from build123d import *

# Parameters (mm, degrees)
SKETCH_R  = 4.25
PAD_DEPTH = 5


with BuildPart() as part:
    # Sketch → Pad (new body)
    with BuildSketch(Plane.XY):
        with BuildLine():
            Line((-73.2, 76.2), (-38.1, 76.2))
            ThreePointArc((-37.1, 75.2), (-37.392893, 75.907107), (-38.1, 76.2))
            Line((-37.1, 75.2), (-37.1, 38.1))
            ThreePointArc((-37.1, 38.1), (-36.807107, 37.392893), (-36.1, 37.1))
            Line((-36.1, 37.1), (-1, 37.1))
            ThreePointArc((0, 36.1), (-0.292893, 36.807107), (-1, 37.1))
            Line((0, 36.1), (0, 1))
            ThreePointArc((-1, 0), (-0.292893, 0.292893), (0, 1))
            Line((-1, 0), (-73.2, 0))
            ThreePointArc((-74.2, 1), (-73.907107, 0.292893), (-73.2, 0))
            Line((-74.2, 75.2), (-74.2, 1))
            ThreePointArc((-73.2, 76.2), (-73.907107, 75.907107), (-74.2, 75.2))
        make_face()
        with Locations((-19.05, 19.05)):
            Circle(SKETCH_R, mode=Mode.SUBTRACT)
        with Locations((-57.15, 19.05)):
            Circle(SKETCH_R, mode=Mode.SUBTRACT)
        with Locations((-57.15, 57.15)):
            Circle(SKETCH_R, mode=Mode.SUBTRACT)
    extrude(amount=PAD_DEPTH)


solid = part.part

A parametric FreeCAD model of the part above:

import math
import FreeCAD as App
import Part
import Sketcher
from FreeCAD import Vector
Q = App.Units.Quantity

doc = App.newDocument("Part")
body = doc.addObject("PartDesign::Body", "Body")

# Sketch on XY plane
sketch1 = body.newObject("Sketcher::SketchObject", "Sketch")
sketch1.AttachmentSupport = (doc.getObject("XY_Plane"), [""])
sketch1.MapMode = "FlatFace"
sketch1.addGeometry([
    Part.LineSegment(Vector(-38.1, 76.2, 0), Vector(-73.2, 76.2, 0)),  # 0
    Part.ArcOfCircle(Part.Circle(Vector(-73.200001, 75.200001, 0), Vector(0, 0, 1), 0.999999), math.radians(89.999957), math.radians(180.000043)),  # 1
    Part.LineSegment(Vector(-74.2, 75.2, 0), Vector(-74.2, 1, 0)),  # 2
    Part.ArcOfCircle(Part.Circle(Vector(-73.200001, 0.999999, 0), Vector(0, 0, 1), 0.999999), math.radians(179.999957), math.radians(270.000043)),  # 3
    Part.LineSegment(Vector(-73.2, 0, 0), Vector(-1, 0, 0)),  # 4
    Part.ArcOfCircle(Part.Circle(Vector(-0.999999, 0.999999, 0), Vector(0, 0, 1), 0.999999), math.radians(-90.000043), math.radians(0.000043)),  # 5
    Part.LineSegment(Vector(0, 1, 0), Vector(0, 36.1, 0)),  # 6
    Part.ArcOfCircle(Part.Circle(Vector(-0.999999, 36.100001, 0), Vector(0, 0, 1), 0.999999), math.radians(-0.000043), math.radians(90.000043)),  # 7
    Part.LineSegment(Vector(-1, 37.1, 0), Vector(-36.1, 37.1, 0)),  # 8
    Part.ArcOfCircle(Part.Circle(Vector(-36.100001, 38.099999, 0), Vector(0, 0, 1), 0.999999), math.radians(179.999957), math.radians(270.000043)),  # 9
    Part.LineSegment(Vector(-37.1, 38.1, 0), Vector(-37.1, 75.2, 0)),  # 10
    Part.ArcOfCircle(Part.Circle(Vector(-38.099999, 75.200001, 0), Vector(0, 0, 1), 0.999999), math.radians(-0.000043), math.radians(90.000043)),  # 11
    Part.Circle(Vector(-19.05, 19.05, 0), Vector(0, 0, 1), 4.25),  # 12
    Part.Circle(Vector(-57.15, 19.05, 0), Vector(0, 0, 1), 4.25),  # 13
    Part.Circle(Vector(-57.15, 57.15, 0), Vector(0, 0, 1), 4.25),  # 14
], False)
sketch1.addConstraint([
    Sketcher.Constraint("Tangent", 0, 2, 1, 1),
    Sketcher.Constraint("Tangent", 1, 2, 2, 1),
    Sketcher.Constraint("Tangent", 2, 2, 3, 1),
    Sketcher.Constraint("Tangent", 3, 2, 4, 1),
    Sketcher.Constraint("Tangent", 4, 2, 5, 1),
    Sketcher.Constraint("Tangent", 5, 2, 6, 1),
    Sketcher.Constraint("Tangent", 6, 2, 7, 1),
    Sketcher.Constraint("Tangent", 7, 2, 8, 1),
    Sketcher.Constraint("Tangent", 8, 2, 9, 2),
    Sketcher.Constraint("Tangent", 9, 1, 10, 1),
    Sketcher.Constraint("Tangent", 10, 2, 11, 1),
    Sketcher.Constraint("Tangent", 11, 2, 0, 1),
    Sketcher.Constraint("Horizontal", 0),
    Sketcher.Constraint("Vertical", 2),
    Sketcher.Constraint("Horizontal", 4),
    Sketcher.Constraint("Vertical", 6),
    Sketcher.Constraint("Horizontal", 8),
    Sketcher.Constraint("Vertical", 10),
    Sketcher.Constraint("Equal", 1, 3),
    Sketcher.Constraint("Equal", 3, 5),
    Sketcher.Constraint("Equal", 5, 7),
    Sketcher.Constraint("Equal", 7, 9),
    Sketcher.Constraint("Equal", 9, 11),
    Sketcher.Constraint("Equal", 12, 13),
    Sketcher.Constraint("Equal", 13, 14),
    Sketcher.Constraint("PointOnObject", 3, 2, -1),
    Sketcher.Constraint("PointOnObject", 5, 2, -2),
    Sketcher.Constraint("Horizontal", 12, 3, 13, 3),
    Sketcher.Constraint("Vertical", 13, 3, 14, 3),
    Sketcher.Constraint("Equal", 0, 8),
    Sketcher.Constraint("Equal", 8, 6),
    Sketcher.Constraint("Radius", 1, Q("0.999999 mm")),
    Sketcher.Constraint("Diameter", 12, Q("8.5 mm")),
    Sketcher.Constraint("DistanceX", 0, 2, 0, 1, Q("35.1 mm")),
    Sketcher.Constraint("DistanceY", 2, 2, 2, 1, Q("74.2 mm")),
    Sketcher.Constraint("DistanceX", 13, 3, 12, 3, Q("38.1 mm")),
    Sketcher.Constraint("DistanceY", 13, 3, 14, 3, Q("38.1 mm")),
    Sketcher.Constraint("DistanceX", 12, 3, -1, 1, Q("19.05 mm")),
    Sketcher.Constraint("DistanceY", -1, 1, 12, 3, Q("19.05 mm")),
])
pad1 = body.newObject("PartDesign::Pad", "Pad")
pad1.Profile = sketch1
pad1.Length = 5

doc.recompute()
